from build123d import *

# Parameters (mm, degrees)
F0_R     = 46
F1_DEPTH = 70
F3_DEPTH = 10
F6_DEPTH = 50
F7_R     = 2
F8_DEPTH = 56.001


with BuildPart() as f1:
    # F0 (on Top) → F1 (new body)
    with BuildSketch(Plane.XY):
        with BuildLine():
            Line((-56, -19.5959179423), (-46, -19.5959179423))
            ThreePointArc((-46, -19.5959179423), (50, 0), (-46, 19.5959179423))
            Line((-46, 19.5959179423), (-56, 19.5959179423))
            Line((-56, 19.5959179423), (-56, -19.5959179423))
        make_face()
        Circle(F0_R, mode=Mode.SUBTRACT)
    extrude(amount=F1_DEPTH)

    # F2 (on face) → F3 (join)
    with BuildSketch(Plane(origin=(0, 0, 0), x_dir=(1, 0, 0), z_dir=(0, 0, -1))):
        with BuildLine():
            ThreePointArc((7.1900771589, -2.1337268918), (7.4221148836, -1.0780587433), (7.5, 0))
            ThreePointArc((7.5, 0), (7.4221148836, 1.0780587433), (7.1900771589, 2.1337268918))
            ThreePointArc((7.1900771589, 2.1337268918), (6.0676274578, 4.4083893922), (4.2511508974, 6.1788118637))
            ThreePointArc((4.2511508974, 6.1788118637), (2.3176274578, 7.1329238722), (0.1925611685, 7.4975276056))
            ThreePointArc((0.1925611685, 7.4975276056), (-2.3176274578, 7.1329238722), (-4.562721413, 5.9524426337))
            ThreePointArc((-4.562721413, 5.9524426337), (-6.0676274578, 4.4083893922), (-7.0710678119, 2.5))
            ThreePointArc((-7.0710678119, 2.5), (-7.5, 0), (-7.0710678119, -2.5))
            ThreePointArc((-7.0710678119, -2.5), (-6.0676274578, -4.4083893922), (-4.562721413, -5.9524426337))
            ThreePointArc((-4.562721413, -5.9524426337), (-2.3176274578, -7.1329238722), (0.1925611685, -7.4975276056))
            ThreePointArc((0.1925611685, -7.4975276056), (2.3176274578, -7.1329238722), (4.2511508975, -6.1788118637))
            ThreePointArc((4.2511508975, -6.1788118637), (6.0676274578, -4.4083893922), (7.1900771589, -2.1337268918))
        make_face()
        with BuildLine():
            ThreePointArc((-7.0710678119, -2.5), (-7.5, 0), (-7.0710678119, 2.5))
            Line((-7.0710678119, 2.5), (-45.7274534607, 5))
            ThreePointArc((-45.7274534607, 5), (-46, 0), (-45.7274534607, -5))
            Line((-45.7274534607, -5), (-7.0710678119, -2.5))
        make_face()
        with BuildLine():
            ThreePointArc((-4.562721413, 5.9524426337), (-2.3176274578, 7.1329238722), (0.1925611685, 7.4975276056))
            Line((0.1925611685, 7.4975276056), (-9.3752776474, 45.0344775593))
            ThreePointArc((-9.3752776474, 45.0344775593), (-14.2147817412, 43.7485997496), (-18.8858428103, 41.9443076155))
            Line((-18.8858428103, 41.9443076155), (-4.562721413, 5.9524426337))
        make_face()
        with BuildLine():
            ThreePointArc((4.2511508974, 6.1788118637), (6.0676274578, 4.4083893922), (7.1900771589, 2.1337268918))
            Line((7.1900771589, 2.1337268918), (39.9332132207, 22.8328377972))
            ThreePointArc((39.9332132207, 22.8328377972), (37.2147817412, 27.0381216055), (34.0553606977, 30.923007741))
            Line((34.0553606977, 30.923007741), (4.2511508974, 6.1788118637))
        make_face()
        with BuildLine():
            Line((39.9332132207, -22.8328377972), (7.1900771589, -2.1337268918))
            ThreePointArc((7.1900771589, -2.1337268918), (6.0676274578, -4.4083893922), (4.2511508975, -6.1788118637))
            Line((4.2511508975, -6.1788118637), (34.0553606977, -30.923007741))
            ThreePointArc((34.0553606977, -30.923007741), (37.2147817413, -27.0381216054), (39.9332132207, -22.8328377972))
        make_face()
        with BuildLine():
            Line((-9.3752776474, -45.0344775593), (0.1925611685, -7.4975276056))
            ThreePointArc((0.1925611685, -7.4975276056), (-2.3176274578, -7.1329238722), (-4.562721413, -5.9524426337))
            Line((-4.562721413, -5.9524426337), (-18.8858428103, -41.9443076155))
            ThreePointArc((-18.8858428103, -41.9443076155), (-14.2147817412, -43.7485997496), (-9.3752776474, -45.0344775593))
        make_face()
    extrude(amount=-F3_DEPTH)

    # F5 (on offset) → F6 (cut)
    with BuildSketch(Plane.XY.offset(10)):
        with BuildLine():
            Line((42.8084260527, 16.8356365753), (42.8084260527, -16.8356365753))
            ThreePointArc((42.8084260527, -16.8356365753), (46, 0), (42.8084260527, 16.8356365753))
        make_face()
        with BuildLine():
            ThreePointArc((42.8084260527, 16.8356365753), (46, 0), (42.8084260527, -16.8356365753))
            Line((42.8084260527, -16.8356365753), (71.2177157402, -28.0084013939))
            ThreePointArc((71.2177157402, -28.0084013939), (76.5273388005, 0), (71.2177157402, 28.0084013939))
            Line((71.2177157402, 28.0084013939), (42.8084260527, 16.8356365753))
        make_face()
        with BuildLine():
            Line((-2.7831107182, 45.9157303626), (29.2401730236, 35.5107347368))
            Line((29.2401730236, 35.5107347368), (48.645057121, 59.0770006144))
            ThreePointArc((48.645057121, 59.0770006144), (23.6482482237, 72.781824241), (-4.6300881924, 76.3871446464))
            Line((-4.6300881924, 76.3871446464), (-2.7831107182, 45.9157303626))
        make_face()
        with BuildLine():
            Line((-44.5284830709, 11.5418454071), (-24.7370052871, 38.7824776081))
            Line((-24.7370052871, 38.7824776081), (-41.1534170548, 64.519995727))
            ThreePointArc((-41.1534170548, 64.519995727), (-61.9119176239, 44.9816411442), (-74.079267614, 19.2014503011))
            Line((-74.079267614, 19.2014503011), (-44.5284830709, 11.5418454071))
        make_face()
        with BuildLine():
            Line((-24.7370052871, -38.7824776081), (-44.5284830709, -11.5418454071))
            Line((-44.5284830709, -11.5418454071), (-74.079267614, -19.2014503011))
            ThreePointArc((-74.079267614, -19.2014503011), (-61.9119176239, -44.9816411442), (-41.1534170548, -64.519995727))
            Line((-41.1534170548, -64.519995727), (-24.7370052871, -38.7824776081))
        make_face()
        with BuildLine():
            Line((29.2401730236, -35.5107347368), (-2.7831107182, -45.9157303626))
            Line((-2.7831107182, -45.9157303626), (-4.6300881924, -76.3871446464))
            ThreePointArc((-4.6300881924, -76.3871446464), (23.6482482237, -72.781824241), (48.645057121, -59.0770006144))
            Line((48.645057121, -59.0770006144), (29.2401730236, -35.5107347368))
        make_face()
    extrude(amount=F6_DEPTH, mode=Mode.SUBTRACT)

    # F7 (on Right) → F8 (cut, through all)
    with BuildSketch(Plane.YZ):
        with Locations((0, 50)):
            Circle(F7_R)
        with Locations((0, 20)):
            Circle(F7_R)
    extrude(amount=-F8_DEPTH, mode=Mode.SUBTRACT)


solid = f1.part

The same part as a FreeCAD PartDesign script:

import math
import FreeCAD as App
import Part
import Sketcher

V = App.Vector
Q = App.Units.Quantity

doc = App.newDocument("Part")
body = doc.addObject("PartDesign::Body", "Body")

sketch1 = doc.addObject("Sketcher::SketchObject", "Sketch")
body.addObject(sketch1)
sketch1.AttachmentSupport = (doc.XY_Plane, [""])
sketch1.MapMode = "FlatFace"
sketch1.addGeometry(Part.LineSegment(V(-56, -20, 0), V(-46, -20, 0)), False)
sketch1.addGeometry(Part.ArcOfCircle(Part.Circle(V(0, 0, 0), V(0, 0, 1), 50), math.radians(-157), math.radians(157)), False)
sketch1.addGeometry(Part.LineSegment(V(-46, 20, 0), V(-56, 20, 0)), False)
sketch1.addGeometry(Part.LineSegment(V(-56, 20, 0), V(-56, -20, 0)), False)
sketch1.addGeometry(Part.Circle(V(0, 0, 0), V(0, 0, 1), 46), False)
sketch1.addConstraint(Sketcher.Constraint("Coincident", 0, 2, 1, 1))
sketch1.addConstraint(Sketcher.Constraint("Coincident", 1, 2, 2, 1))
sketch1.addConstraint(Sketcher.Constraint("Coincident", 2, 2, 3, 1))
sketch1.addConstraint(Sketcher.Constraint("Coincident", 3, 2, 0, 1))
sketch1.addConstraint(Sketcher.Constraint("Horizontal", 0))
sketch1.addConstraint(Sketcher.Constraint("Horizontal", 2))
sketch1.addConstraint(Sketcher.Constraint("Vertical", 3))
sketch1.addConstraint(Sketcher.Constraint("Coincident", 1, 3, -1, 1))
sketch1.addConstraint(Sketcher.Constraint("Coincident", 4, 3, -1, 1))
sketch1.addConstraint(Sketcher.Constraint("Vertical", 0, 2, 1, 2))
sketch1.addConstraint(Sketcher.Constraint("Diameter", 4, 92.0))
sketch1.addConstraint(Sketcher.Constraint("Radius", 1, 50.0))
sketch1.addConstraint(Sketcher.Constraint("DistanceX", 0, 1, 0, 2, 10.0))
sketch1.addConstraint(Sketcher.Constraint("DistanceX", 0, 2, -1, 1, 46.0))
pad1 = doc.addObject("PartDesign::Pad", "Pad")
body.addObject(pad1)
pad1.Profile = sketch1
pad1.Length = 70

sketch2 = doc.addObject("Sketcher::SketchObject", "Sketch001")
body.addObject(sketch2)
sketch2.AttachmentSupport = (doc.XY_Plane, [""])
sketch2.MapMode = "FlatFace"
sketch2.addGeometry(Part.ArcOfCircle(Part.Circle(V(0, 0, 0), V(0, 0, 1), 7.5), math.radians(0), math.radians(16.53)), False)
sketch2.addGeometry(Part.ArcOfCircle(Part.Circle(V(0, 0, 0), V(0, 0, 1), 7.5), math.radians(-16.53), math.radians(0)), False)
sketch2.addGeometry(Part.LineSegment(V(7.2, -2.1, 0), V(39.9, -22.8, 0)), False)
sketch2.addGeometry(Part.ArcOfCircle(Part.Circle(V(0, 0, 0), V(0, 0, 1), 46), math.radians(-42.24), math.radians(-29.76)), False)
sketch2.addGeometry(Part.LineSegment(V(34.1, -30.9, 0), V(4.3, -6.2, 0)), False)
sketch2.addGeometry(Part.ArcOfCircle(Part.Circle(V(0, 0, 0), V(0, 0, 1), 7.5), math.radians(-89), math.radians(-55)), False)
sketch2.addGeometry(Part.LineSegment(V(0.2, -7.5, 0), V(-9.4, -45, 0)), False)
sketch2.addGeometry(Part.ArcOfCircle(Part.Circle(V(0, 0, 0), V(0, 0, 1), 46), math.radians(-114.24), math.radians(-101.76)), False)
sketch2.addGeometry(Part.LineSegment(V(-18.9, -41.9, 0), V(-4.6, -6, 0)), False)
sketch2.addGeometry(Part.ArcOfCircle(Part.Circle(V(0, 0, 0), V(0, 0, 1), 7.5), math.radians(-161), math.radians(-127)), False)
sketch2.addGeometry(Part.LineSegment(V(-7.1, -2.5, 0), V(-45.7, -5, 0)), False)
sketch2.addGeometry(Part.ArcOfCircle(Part.Circle(V(0, 0, 0), V(0, 0, 1), 46), math.radians(173.76), math.radians(186.24)), False)
sketch2.addGeometry(Part.LineSegment(V(-45.7, 5, 0), V(-7.1, 2.5, 0)), False)
sketch2.addGeometry(Part.ArcOfCircle(Part.Circle(V(0, 0, 0), V(0, 0, 1), 7.5), math.radians(127), math.radians(161)), False)
sketch2.addGeometry(Part.LineSegment(V(-4.6, 6, 0), V(-18.9, 41.9, 0)), False)
sketch2.addGeometry(Part.ArcOfCircle(Part.Circle(V(0, 0, 0), V(0, 0, 1), 46), math.radians(101.76), math.radians(114.24)), False)
sketch2.addGeometry(Part.LineSegment(V(-9.4, 45, 0), V(0.2, 7.5, 0)), False)
sketch2.addGeometry(Part.ArcOfCircle(Part.Circle(V(0, 0, 0), V(0, 0, 1), 7.5), math.radians(55), math.radians(89)), False)
sketch2.addGeometry(Part.LineSegment(V(4.3, 6.2, 0), V(34.1, 30.9, 0)), False)
sketch2.addGeometry(Part.ArcOfCircle(Part.Circle(V(0, 0, 0), V(0, 0, 1), 46), math.radians(29.76), math.radians(42.24)), False)
sketch2.addGeometry(Part.LineSegment(V(39.9, 22.8, 0), V(7.2, 2.1, 0)), False)
sketch2.addConstraint(Sketcher.Constraint("Tangent", 0, 1, 1, 2))
sketch2.addConstraint(Sketcher.Constraint("Coincident", 1, 1, 2, 1))
sketch2.addConstraint(Sketcher.Constraint("Coincident", 2, 2, 3, 2))
sketch2.addConstraint(Sketcher.Constraint("Coincident", 3, 1, 4, 1))
sketch2.addConstraint(Sketcher.Constraint("Coincident", 4, 2, 5, 2))
sketch2.addConstraint(Sketcher.Constraint("Coincident", 5, 1, 6, 1))
sketch2.addConstraint(Sketcher.Constraint("Coincident", 6, 2, 7, 2))
sketch2.addConstraint(Sketcher.Constraint("Coincident", 7, 1, 8, 1))
sketch2.addConstraint(Sketcher.Constraint("Coincident", 8, 2, 9, 2))
sketch2.addConstraint(Sketcher.Constraint("Coincident", 9, 1, 10, 1))
sketch2.addConstraint(Sketcher.Constraint("Coincident", 10, 2, 11, 2))
sketch2.addConstraint(Sketcher.Constraint("Coincident", 11, 1, 12, 1))
sketch2.addConstraint(Sketcher.Constraint("Coincident", 12, 2, 13, 2))
sketch2.addConstraint(Sketcher.Constraint("Coincident", 13, 1, 14, 1))
sketch2.addConstraint(Sketcher.Constraint("Coincident", 14, 2, 15, 2))
sketch2.addConstraint(Sketcher.Constraint("Coincident", 15, 1, 16, 1))
sketch2.addConstraint(Sketcher.Constraint("Coincident", 16, 2, 17, 2))
sketch2.addConstraint(Sketcher.Constraint("Coincident", 17, 1, 18, 1))
sketch2.addConstraint(Sketcher.Constraint("Coincident", 18, 2, 19, 2))
sketch2.addConstraint(Sketcher.Constraint("Coincident", 19, 1, 20, 1))
sketch2.addConstraint(Sketcher.Constraint("Coincident", 20, 2, 0, 2))
sketch2.addConstraint(Sketcher.Constraint("Coincident", 0, 3, -1, 1))
sketch2.addConstraint(Sketcher.Constraint("Coincident", 3, 3, -1, 1))
sketch2.addConstraint(Sketcher.Constraint("Coincident", 5, 3, -1, 1))
sketch2.addConstraint(Sketcher.Constraint("Coincident", 7, 3, -1, 1))
sketch2.addConstraint(Sketcher.Constraint("Coincident", 9, 3, -1, 1))
sketch2.addConstraint(Sketcher.Constraint("Coincident", 11, 3, -1, 1))
sketch2.addConstraint(Sketcher.Constraint("Coincident", 13, 3, -1, 1))
sketch2.addConstraint(Sketcher.Constraint("Coincident", 15, 3, -1, 1))
sketch2.addConstraint(Sketcher.Constraint("Coincident", 17, 3, -1, 1))
sketch2.addConstraint(Sketcher.Constraint("Coincident", 19, 3, -1, 1))
sketch2.addConstraint(Sketcher.Constraint("Equal", 0, 1))
sketch2.addConstraint(Sketcher.Constraint("Equal", 1, 5))
sketch2.addConstraint(Sketcher.Constraint("Equal", 3, 7))
sketch2.addConstraint(Sketcher.Constraint("Equal", 5, 9))
sketch2.addConstraint(Sketcher.Constraint("Equal", 7, 11))
sketch2.addConstraint(Sketcher.Constraint("Equal", 9, 13))
sketch2.addConstraint(Sketcher.Constraint("Equal", 11, 15))
sketch2.addConstraint(Sketcher.Constraint("Equal", 13, 17))
sketch2.addConstraint(Sketcher.Constraint("Equal", 15, 19))
sketch2.addConstraint(Sketcher.Constraint("PointOnObject", 0, 1, -1))
sketch2.addConstraint(Sketcher.Constraint("Vertical", 10, 2, 11, 1))
sketch2.addConstraint(Sketcher.Constraint("Vertical", 9, 1, 12, 2))
sketch2.addConstraint(Sketcher.Constraint("Vertical", 8, 2, 13, 1))
sketch2.addConstraint(Sketcher.Constraint("Vertical", 7, 1, 14, 2))
sketch2.addConstraint(Sketcher.Constraint("Vertical", 6, 2, 15, 1))
sketch2.addConstraint(Sketcher.Constraint("Vertical", 5, 1, 16, 2))
sketch2.addConstraint(Sketcher.Constraint("Vertical", 4, 2, 17, 1))
sketch2.addConstraint(Sketcher.Constraint("Vertical", 3, 1, 18, 2))
sketch2.addConstraint(Sketcher.Constraint("Vertical", 2, 2, 19, 1))
sketch2.addConstraint(Sketcher.Constraint("Vertical", 1, 1, 20, 2))
sketch2.addConstraint(Sketcher.Constraint("Equal", 2, 4))
sketch2.addConstraint(Sketcher.Constraint("Equal", 4, 6))
sketch2.addConstraint(Sketcher.Constraint("Equal", 6, 8))
sketch2.addConstraint(Sketcher.Constraint("Equal", 8, 10))
sketch2.addConstraint(Sketcher.Constraint("Radius", 3, 46.0))
sketch2.addConstraint(Sketcher.Constraint("Radius", 0, 7.5))
sketch2.addConstraint(Sketcher.Constraint("DistanceY", 10, 2, -1, 1, 5.0))
sketch2.addConstraint(Sketcher.Constraint("DistanceY", 9, 1, 12, 2, 5.0))
sketch2.addConstraint(Sketcher.Constraint("DistanceX", 16, 2, 18, 2, 33.8628))
sketch2.addConstraint(Sketcher.Constraint("DistanceX", -1, 1, 3, 1, 34.055361))
sketch2.addConstraint(Sketcher.Constraint("DistanceX", 8, 2, -1, 1, 4.562721))
sketch2.addConstraint(Sketcher.Constraint("DistanceY", 2, 2, 1, 1, 20.699111))
pad2 = doc.addObject("PartDesign::Pad", "Pad001")
body.addObject(pad2)
pad2.Profile = sketch2
pad2.Length = 10

sketch3 = doc.addObject("Sketcher::SketchObject", "Sketch002")
body.addObject(sketch3)
sketch3.AttachmentSupport = (doc.XY_Plane, [""])
sketch3.MapMode = "FlatFace"
sketch3.AttachmentOffset = App.Placement(V(0, 0, 10), App.Rotation())
sketch3.addGeometry(Part.LineSegment(V(43, 17, 0), V(43, -17, 0)), False)
sketch3.addGeometry(Part.LineSegment(V(43, -17, 0), V(71, -28, 0)), False)
sketch3.addGeometry(Part.ArcOfCircle(Part.Circle(V(0, 0, 0), V(0, 0, 1), 77), math.radians(-21), math.radians(21)), False)
sketch3.addGeometry(Part.LineSegment(V(71, 28, 0), V(43, 17, 0)), False)
sketch3.addGeometry(Part.LineSegment(V(-3, 46, 0), V(29, 36, 0)), False)
sketch3.addGeometry(Part.LineSegment(V(29, 36, 0), V(49, 59, 0)), False)
sketch3.addGeometry(Part.ArcOfCircle(Part.Circle(V(0, 0, 0), V(0, 0, 1), 77), math.radians(51), math.radians(93)), False)
sketch3.addGeometry(Part.LineSegment(V(-5, 76, 0), V(-3, 46, 0)), False)
sketch3.addGeometry(Part.LineSegment(V(-45, 12, 0), V(-25, 39, 0)), False)
sketch3.addGeometry(Part.LineSegment(V(-25, 39, 0), V(-41, 65, 0)), False)
sketch3.addGeometry(Part.ArcOfCircle(Part.Circle(V(0, 0, 0), V(0, 0, 1), 77), math.radians(123), math.radians(165)), False)
sketch3.addGeometry(Part.LineSegment(V(-74, 19, 0), V(-45, 12, 0)), False)
sketch3.addGeometry(Part.LineSegment(V(-25, -39, 0), V(-45, -12, 0)), False)
sketch3.addGeometry(Part.LineSegment(V(-45, -12, 0), V(-74, -19, 0)), False)
sketch3.addGeometry(Part.ArcOfCircle(Part.Circle(V(0, 0, 0), V(0, 0, 1), 77), math.radians(-165), math.radians(-123)), False)
sketch3.addGeometry(Part.LineSegment(V(-41, -65, 0), V(-25, -39, 0)), False)
sketch3.addGeometry(Part.LineSegment(V(29, -36, 0), V(-3, -46, 0)), False)
sketch3.addGeometry(Part.LineSegment(V(-3, -46, 0), V(-5, -76, 0)), False)
sketch3.addGeometry(Part.ArcOfCircle(Part.Circle(V(0, 0, 0), V(0, 0, 1), 77), math.radians(-93), math.radians(-51)), False)
sketch3.addGeometry(Part.LineSegment(V(49, -59, 0), V(29, -36, 0)), False)
sketch3.addConstraint(Sketcher.Constraint("Coincident", 0, 2, 1, 1))
sketch3.addConstraint(Sketcher.Constraint("Coincident", 1, 2, 2, 1))
sketch3.addConstraint(Sketcher.Constraint("Coincident", 2, 2, 3, 1))
sketch3.addConstraint(Sketcher.Constraint("Coincident", 3, 2, 0, 1))
sketch3.addConstraint(Sketcher.Constraint("Coincident", 4, 2, 5, 1))
sketch3.addConstraint(Sketcher.Constraint("Coincident", 5, 2, 6, 1))
sketch3.addConstraint(Sketcher.Constraint("Coincident", 6, 2, 7, 1))
sketch3.addConstraint(Sketcher.Constraint("Coincident", 7, 2, 4, 1))
sketch3.addConstraint(Sketcher.Constraint("Coincident", 8, 2, 9, 1))
sketch3.addConstraint(Sketcher.Constraint("Coincident", 9, 2, 10, 1))
sketch3.addConstraint(Sketcher.Constraint("Coincident", 10, 2, 11, 1))
sketch3.addConstraint(Sketcher.Constraint("Coincident", 11, 2, 8, 1))
sketch3.addConstraint(Sketcher.Constraint("Coincident", 12, 2, 13, 1))
sketch3.addConstraint(Sketcher.Constraint("Coincident", 13, 2, 14, 1))
sketch3.addConstraint(Sketcher.Constraint("Coincident", 14, 2, 15, 1))
sketch3.addConstraint(Sketcher.Constraint("Coincident", 15, 2, 12, 1))
sketch3.addConstraint(Sketcher.Constraint("Coincident", 16, 2, 17, 1))
sketch3.addConstraint(Sketcher.Constraint("Coincident", 17, 2, 18, 1))
sketch3.addConstraint(Sketcher.Constraint("Coincident", 18, 2, 19, 1))
sketch3.addConstraint(Sketcher.Constraint("Coincident", 19, 2, 16, 1))
sketch3.addConstraint(Sketcher.Constraint("Vertical", 0))
sketch3.addConstraint(Sketcher.Constraint("Coincident", 2, 3, -1, 1))
sketch3.addConstraint(Sketcher.Constraint("Coincident", 6, 3, -1, 1))
sketch3.addConstraint(Sketcher.Constraint("Coincident", 10, 3, -1, 1))
sketch3.addConstraint(Sketcher.Constraint("Coincident", 14, 3, -1, 1))
sketch3.addConstraint(Sketcher.Constraint("Coincident", 18, 3, -1, 1))
sketch3.addConstraint(Sketcher.Constraint("Equal", 2, 6))
sketch3.addConstraint(Sketcher.Constraint("Equal", 6, 10))
sketch3.addConstraint(Sketcher.Constraint("Equal", 10, 14))
sketch3.addConstraint(Sketcher.Constraint("Equal", 14, 18))
sketch3.addConstraint(Sketcher.Constraint("Symmetric", 11, 2, 12, 2, -1))
sketch3.addConstraint(Sketcher.Constraint("Symmetric", 8, 2, 15, 2, -1))
sketch3.addConstraint(Sketcher.Constraint("Symmetric", 7, 2, 16, 2, -1))
sketch3.addConstraint(Sketcher.Constraint("Symmetric", 4, 2, 19, 2, -1))
sketch3.addConstraint(Sketcher.Constraint("Vertical", 1, 2, 2, 2))
sketch3.addConstraint(Sketcher.Constraint("Vertical", 10, 2, 13, 2))
sketch3.addConstraint(Sketcher.Constraint("Vertical", 9, 2, 14, 2))
sketch3.addConstraint(Sketcher.Constraint("Vertical", 6, 2, 17, 2))
sketch3.addConstraint(Sketcher.Constraint("Vertical", 5, 2, 18, 2))
sketch3.addConstraint(Sketcher.Constraint("Equal", 1, 3))
sketch3.addConstraint(Sketcher.Constraint("Equal", 3, 5))
sketch3.addConstraint(Sketcher.Constraint("Equal", 5, 7))
sketch3.addConstraint(Sketcher.Constraint("Equal", 4, 8))
sketch3.addConstraint(Sketcher.Constraint("Equal", 7, 9))
sketch3.addConstraint(Sketcher.Constraint("Equal", 9, 11))
sketch3.addConstraint(Sketcher.Constraint("Angle", 4, Q("-18 deg")))
sketch3.addConstraint(Sketcher.Constraint("Angle", 8, Q("54 deg")))
sketch3.addConstraint(Sketcher.Constraint("Radius", 2, 76.527339))
sketch3.addConstraint(Sketcher.Constraint("DistanceY", -1, 1, 5, 2, 59.077001))
sketch3.addConstraint(Sketcher.Constraint("DistanceY", 1, 2, -1, 1, 28.008401))
sketch3.addConstraint(Sketcher.Constraint("DistanceY", 3, 2, 4, 2, 18.675098))
sketch3.addConstraint(Sketcher.Constraint("DistanceY", 13, 2, 10, 2, 38.402901))
sketch3.addConstraint(Sketcher.Constraint("DistanceY", 17, 2, 12, 2, 64.845299))
sketch3.addConstraint(Sketcher.Constraint("Distance", 1, 30.527339))
sketch3.addConstraint(Sketcher.Constraint("DistanceY", 0, 2, 0, 1, 33.671273))
sketch3.addConstraint(Sketcher.Constraint("DistanceX", 9, 2, 8, 2, 16.416412))
pocket1 = doc.addObject("PartDesign::Pocket", "Pocket")
body.addObject(pocket1)
pocket1.Profile = sketch3
pocket1.Length = 50
pocket1.Reversed = True

sketch4 = doc.addObject("Sketcher::SketchObject", "Sketch003")
body.addObject(sketch4)
sketch4.AttachmentSupport = (doc.YZ_Plane, [""])
sketch4.MapMode = "FlatFace"
sketch4.addGeometry(Part.Circle(V(0, 50, 0), V(0, 0, 1), 2), False)
sketch4.addGeometry(Part.Circle(V(0, 20, 0), V(0, 0, 1), 2), False)
sketch4.addConstraint(Sketcher.Constraint("Equal", 0, 1))
sketch4.addConstraint(Sketcher.Constraint("PointOnObject", 0, 3, -2))
sketch4.addConstraint(Sketcher.Constraint("PointOnObject", 1, 3, -2))
sketch4.addConstraint(Sketcher.Constraint("Diameter", 0, 4.0))
sketch4.addConstraint(Sketcher.Constraint("DistanceY", -1, 1, 0, 3, 50.0))
sketch4.addConstraint(Sketcher.Constraint("DistanceY", -1, 1, 1, 3, 20.0))
pocket2 = doc.addObject("PartDesign::Pocket", "Pocket001")
body.addObject(pocket2)
pocket2.Profile = sketch4
pocket2.Type = "ThroughAll"

doc.recompute()
